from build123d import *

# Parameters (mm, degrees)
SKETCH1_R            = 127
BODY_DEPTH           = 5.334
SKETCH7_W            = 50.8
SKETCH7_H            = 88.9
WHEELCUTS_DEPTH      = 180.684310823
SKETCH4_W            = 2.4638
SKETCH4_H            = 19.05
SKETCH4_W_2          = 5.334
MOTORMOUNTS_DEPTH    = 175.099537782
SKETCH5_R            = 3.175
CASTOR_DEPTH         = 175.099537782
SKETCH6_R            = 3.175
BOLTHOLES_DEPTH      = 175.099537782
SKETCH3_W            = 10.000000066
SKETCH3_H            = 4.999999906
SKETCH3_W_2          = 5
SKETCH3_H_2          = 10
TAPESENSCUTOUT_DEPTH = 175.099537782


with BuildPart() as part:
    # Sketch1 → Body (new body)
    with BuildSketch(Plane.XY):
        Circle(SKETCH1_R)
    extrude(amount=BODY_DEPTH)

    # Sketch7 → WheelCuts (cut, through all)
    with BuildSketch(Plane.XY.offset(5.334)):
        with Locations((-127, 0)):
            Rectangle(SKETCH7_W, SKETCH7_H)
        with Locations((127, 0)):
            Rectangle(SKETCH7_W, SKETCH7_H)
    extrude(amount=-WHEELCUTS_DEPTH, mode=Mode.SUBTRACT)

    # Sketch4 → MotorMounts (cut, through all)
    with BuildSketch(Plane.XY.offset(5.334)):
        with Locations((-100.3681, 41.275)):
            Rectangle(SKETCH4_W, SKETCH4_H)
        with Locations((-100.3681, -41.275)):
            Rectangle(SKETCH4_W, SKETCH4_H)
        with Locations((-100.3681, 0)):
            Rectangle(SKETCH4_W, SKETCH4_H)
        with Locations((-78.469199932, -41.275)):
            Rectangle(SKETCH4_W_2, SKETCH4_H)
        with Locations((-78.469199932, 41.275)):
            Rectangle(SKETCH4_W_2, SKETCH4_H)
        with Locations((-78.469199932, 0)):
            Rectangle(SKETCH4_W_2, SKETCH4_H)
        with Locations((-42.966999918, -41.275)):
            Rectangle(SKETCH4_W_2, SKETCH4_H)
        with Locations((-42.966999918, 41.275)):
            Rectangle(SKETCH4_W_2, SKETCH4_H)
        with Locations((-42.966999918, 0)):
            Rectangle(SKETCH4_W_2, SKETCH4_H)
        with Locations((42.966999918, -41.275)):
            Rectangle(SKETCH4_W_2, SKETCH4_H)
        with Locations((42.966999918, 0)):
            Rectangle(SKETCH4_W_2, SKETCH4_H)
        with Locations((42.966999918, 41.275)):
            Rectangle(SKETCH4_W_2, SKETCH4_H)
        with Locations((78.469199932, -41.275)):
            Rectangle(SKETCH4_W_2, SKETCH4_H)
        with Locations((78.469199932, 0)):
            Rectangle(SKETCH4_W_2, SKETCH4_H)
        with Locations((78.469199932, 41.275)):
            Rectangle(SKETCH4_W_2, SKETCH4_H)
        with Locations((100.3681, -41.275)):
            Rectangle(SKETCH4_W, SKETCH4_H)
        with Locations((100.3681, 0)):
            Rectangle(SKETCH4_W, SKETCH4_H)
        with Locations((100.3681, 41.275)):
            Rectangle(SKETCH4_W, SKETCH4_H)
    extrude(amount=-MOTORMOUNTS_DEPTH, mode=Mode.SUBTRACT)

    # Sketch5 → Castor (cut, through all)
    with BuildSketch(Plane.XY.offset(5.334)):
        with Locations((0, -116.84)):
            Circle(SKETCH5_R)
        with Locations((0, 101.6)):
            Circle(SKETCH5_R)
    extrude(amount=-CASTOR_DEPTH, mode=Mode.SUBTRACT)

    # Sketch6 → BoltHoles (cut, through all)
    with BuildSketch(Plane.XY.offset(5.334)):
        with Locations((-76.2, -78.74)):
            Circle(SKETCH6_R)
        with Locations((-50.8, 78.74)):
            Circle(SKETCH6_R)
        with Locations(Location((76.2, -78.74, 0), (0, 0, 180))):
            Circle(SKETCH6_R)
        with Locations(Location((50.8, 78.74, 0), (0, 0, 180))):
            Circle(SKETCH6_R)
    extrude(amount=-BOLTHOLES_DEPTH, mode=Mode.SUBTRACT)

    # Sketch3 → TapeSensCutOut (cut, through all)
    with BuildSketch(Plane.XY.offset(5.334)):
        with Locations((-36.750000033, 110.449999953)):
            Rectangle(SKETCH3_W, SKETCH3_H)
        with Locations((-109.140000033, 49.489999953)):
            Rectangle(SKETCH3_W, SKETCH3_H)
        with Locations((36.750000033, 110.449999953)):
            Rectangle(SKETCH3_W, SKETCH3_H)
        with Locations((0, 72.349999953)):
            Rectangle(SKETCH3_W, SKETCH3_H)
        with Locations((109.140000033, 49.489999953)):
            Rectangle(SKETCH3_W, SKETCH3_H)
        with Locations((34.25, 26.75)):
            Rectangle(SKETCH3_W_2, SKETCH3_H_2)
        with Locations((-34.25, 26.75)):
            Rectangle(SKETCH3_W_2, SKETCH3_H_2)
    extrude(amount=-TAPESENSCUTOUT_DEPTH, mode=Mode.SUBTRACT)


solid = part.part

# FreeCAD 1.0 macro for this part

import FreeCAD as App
import Part
import Sketcher

V = App.Vector
Q = App.Units.Quantity


def add_polygon(sketch, points):
    """Adds a closed chain of lines whose ends are joined by coincident constraints."""
    first, n = sketch.GeometryCount, len(points)
    for a, b in zip(points, points[1:] + points[:1]):
        sketch.addGeometry(Part.LineSegment(App.Vector(*a, 0), App.Vector(*b, 0)), False)
    for i in range(n):
        sketch.addConstraint(Sketcher.Constraint("Coincident", first + i, 2, first + (i + 1) % n, 1))

doc = App.newDocument("Part")
body = doc.addObject("PartDesign::Body", "Body")

# Sketch on XY plane
sketch1 = doc.addObject("Sketcher::SketchObject", "Sketch")
body.addObject(sketch1)
sketch1.AttachmentSupport = (doc.XY_Plane, [""])
sketch1.MapMode = "FlatFace"
sketch1.addGeometry(Part.Circle(V(0, 0, 0), V(0, 0, 1), 127), False)
sketch1.addConstraint([
    Sketcher.Constraint("Coincident", 0, 3, -1, 1),
    Sketcher.Constraint("Diameter", 0, Q("10 in")),
])
pad1 = doc.addObject("PartDesign::Pad", "Pad")
body.addObject(pad1)
pad1.Profile = sketch1
pad1.Length = Q("0.21 in")

# Sketch on XY plane
sketch2 = doc.addObject("Sketcher::SketchObject", "Sketch001")
body.addObject(sketch2)
sketch2.AttachmentSupport = (doc.XY_Plane, [""])
sketch2.MapMode = "FlatFace"
sketch2.AttachmentOffset = App.Placement(V(0, 0, 0.21 * 25.4), App.Rotation())
add_polygon(sketch2, [(-152, 44), (-152, -44), (-102, -44), (-102, 44)])  # lines 0-3
add_polygon(sketch2, [(102, 44), (102, -44), (152, -44), (152, 44)])  # lines 4-7
sketch2.addConstraint([
    Sketcher.Constraint("Vertical", 0),
    Sketcher.Constraint("Horizontal", 1),
    Sketcher.Constraint("Vertical", 2),
    Sketcher.Constraint("Horizontal", 3),
    Sketcher.Constraint("Vertical", 4),
    Sketcher.Constraint("Horizontal", 5),
    Sketcher.Constraint("Vertical", 6),
    Sketcher.Constraint("Horizontal", 7),
    Sketcher.Constraint("Symmetric", 2, 2, 4, 2, -1, 1),
    Sketcher.Constraint("Symmetric", 0, 2, 6, 2, -1, 1),
    Sketcher.Constraint("Horizontal", 1, 2, 4, 2),
    Sketcher.Constraint("DistanceX", 1, 1, 1, 2, Q("2 in")),
    Sketcher.Constraint("DistanceY", 0, 2, 0, 1, Q("3.5 in")),
    Sketcher.Constraint("DistanceX", 0, 2, -1, 1, Q("6 in")),
])
pocket1 = doc.addObject("PartDesign::Pocket", "Pocket")
body.addObject(pocket1)
pocket1.Profile = sketch2
pocket1.Type = "ThroughAll"

# Sketch on XY plane
sketch3 = doc.addObject("Sketcher::SketchObject", "Sketch002")
body.addObject(sketch3)
sketch3.AttachmentSupport = (doc.XY_Plane, [""])
sketch3.MapMode = "FlatFace"
sketch3.AttachmentOffset = App.Placement(V(0, 0, 0.21 * 25.4), App.Rotation())
add_polygon(sketch3, [(-101.6, 50.8), (-101.6, 31.8), (-99.1, 31.8), (-99.1, 50.8)])  # lines 0-3
add_polygon(sketch3, [(-101.6, -31.8), (-101.6, -50.8), (-99.1, -50.8), (-99.1, -31.8)])  # lines 4-7
add_polygon(sketch3, [(-101.6, 9.5), (-101.6, -9.5), (-99.1, -9.5), (-99.1, 9.5)])  # lines 8-11
add_polygon(sketch3, [(-81.1, -31.8), (-81.1, -50.8), (-75.8, -50.8), (-75.8, -31.8)])  # lines 12-15
add_polygon(sketch3, [(-81.1, 50.8), (-81.1, 31.8), (-75.8, 31.8), (-75.8, 50.8)])  # lines 16-19
add_polygon(sketch3, [(-81.1, 9.5), (-81.1, -9.5), (-75.8, -9.5), (-75.8, 9.5)])  # lines 20-23
add_polygon(sketch3, [(-45.6, -31.8), (-45.6, -50.8), (-40.3, -50.8), (-40.3, -31.8)])  # lines 24-27
add_polygon(sketch3, [(-45.6, 50.8), (-45.6, 31.8), (-40.3, 31.8), (-40.3, 50.8)])  # lines 28-31
add_polygon(sketch3, [(-45.6, 9.5), (-45.6, -9.5), (-40.3, -9.5), (-40.3, 9.5)])  # lines 32-35
add_polygon(sketch3, [(40.3, -31.8), (40.3, -50.8), (45.6, -50.8), (45.6, -31.8)])  # lines 36-39
add_polygon(sketch3, [(40.3, 9.5), (40.3, -9.5), (45.6, -9.5), (45.6, 9.5)])  # lines 40-43
add_polygon(sketch3, [(40.3, 50.8), (40.3, 31.8), (45.6, 31.8), (45.6, 50.8)])  # lines 44-47
add_polygon(sketch3, [(75.8, -31.8), (75.8, -50.8), (81.1, -50.8), (81.1, -31.8)])  # lines 48-51
add_polygon(sketch3, [(75.8, 9.5), (75.8, -9.5), (81.1, -9.5), (81.1, 9.5)])  # lines 52-55
add_polygon(sketch3, [(75.8, 50.8), (75.8, 31.8), (81.1, 31.8), (81.1, 50.8)])  # lines 56-59
add_polygon(sketch3, [(99.1, -31.8), (99.1, -50.8), (101.6, -50.8), (101.6, -31.8)])  # lines 60-63
add_polygon(sketch3, [(99.1, 9.5), (99.1, -9.5), (101.6, -9.5), (101.6, 9.5)])  # lines 64-67
add_polygon(sketch3, [(99.1, 50.8), (99.1, 31.8), (101.6, 31.8), (101.6, 50.8)])  # lines 68-71
sketch3.addConstraint([
    Sketcher.Constraint("Vertical", 0),
    Sketcher.Constraint("Horizontal", 1),
    Sketcher.Constraint("Vertical", 2),
    Sketcher.Constraint("Horizontal", 3),
    Sketcher.Constraint("Vertical", 4),
    Sketcher.Constraint("Horizontal", 5),
    Sketcher.Constraint("Vertical", 6),
    Sketcher.Constraint("Horizontal", 7),
    Sketcher.Constraint("Vertical", 8),
    Sketcher.Constraint("Horizontal", 9),
    Sketcher.Constraint("Vertical", 10),
    Sketcher.Constraint("Horizontal", 11),
    Sketcher.Constraint("Vertical", 12),
    Sketcher.Constraint("Horizontal", 13),
    Sketcher.Constraint("Vertical", 14),
    Sketcher.Constraint("Horizontal", 15),
    Sketcher.Constraint("Vertical", 16),
    Sketcher.Constraint("Horizontal", 17),
    Sketcher.Constraint("Vertical", 18),
    Sketcher.Constraint("Horizontal", 19),
    Sketcher.Constraint("Vertical", 20),
    Sketcher.Constraint("Horizontal", 21),
    Sketcher.Constraint("Vertical", 22),
    Sketcher.Constraint("Horizontal", 23),
    Sketcher.Constraint("Vertical", 24),
    Sketcher.Constraint("Horizontal", 25),
    Sketcher.Constraint("Vertical", 26),
    Sketcher.Constraint("Horizontal", 27),
    Sketcher.Constraint("Vertical", 28),
    Sketcher.Constraint("Horizontal", 29),
    Sketcher.Constraint("Vertical", 30),
    Sketcher.Constraint("Horizontal", 31),
    Sketcher.Constraint("Vertical", 32),
    Sketcher.Constraint("Horizontal", 33),
    Sketcher.Constraint("Vertical", 34),
    Sketcher.Constraint("Horizontal", 35),
    Sketcher.Constraint("Vertical", 36),
    Sketcher.Constraint("Horizontal", 37),
    Sketcher.Constraint("Vertical", 38),
    Sketcher.Constraint("Horizontal", 39),
    Sketcher.Constraint("Vertical", 40),
    Sketcher.Constraint("Horizontal", 41),
    Sketcher.Constraint("Vertical", 42),
    Sketcher.Constraint("Horizontal", 43),
    Sketcher.Constraint("Vertical", 44),
    Sketcher.Constraint("Horizontal", 45),
    Sketcher.Constraint("Vertical", 46),
    Sketcher.Constraint("Horizontal", 47),
    Sketcher.Constraint("Vertical", 48),
    Sketcher.Constraint("Horizontal", 49),
    Sketcher.Constraint("Vertical", 50),
    Sketcher.Constraint("Horizontal", 51),
    Sketcher.Constraint("Vertical", 52),
    Sketcher.Constraint("Horizontal", 53),
    Sketcher.Constraint("Vertical", 54),
    Sketcher.Constraint("Horizontal", 55),
    Sketcher.Constraint("Vertical", 56),
    Sketcher.Constraint("Horizontal", 57),
    Sketcher.Constraint("Vertical", 58),
    Sketcher.Constraint("Horizontal", 59),
    Sketcher.Constraint("Vertical", 60),
    Sketcher.Constraint("Horizontal", 61),
    Sketcher.Constraint("Vertical", 62),
    Sketcher.Constraint("Horizontal", 63),
    Sketcher.Constraint("Vertical", 64),
    Sketcher.Constraint("Horizontal", 65),
    Sketcher.Constraint("Vertical", 66),
    Sketcher.Constraint("Horizontal", 67),
    Sketcher.Constraint("Vertical", 68),
    Sketcher.Constraint("Horizontal", 69),
    Sketcher.Constraint("Vertical", 70),
    Sketcher.Constraint("Horizontal", 71),
    Sketcher.Constraint("Symmetric", 30, 2, 36, 2, -1, 1),
    Sketcher.Constraint("Symmetric", 28, 2, 38, 2, -1, 1),
    Sketcher.Constraint("Symmetric", 34, 2, 40, 2, -1, 1),
    Sketcher.Constraint("Symmetric", 32, 2, 42, 2, -1, 1),
    Sketcher.Constraint("Symmetric", 26, 2, 44, 2, -1, 1),
    Sketcher.Constraint("Symmetric", 24, 2, 46, 2, -1, 1),
    Sketcher.Constraint("Symmetric", 18, 2, 48, 2, -1, 1),
    Sketcher.Constraint("Symmetric", 16, 2, 50, 2, -1, 1),
    Sketcher.Constraint("Symmetric", 22, 2, 52, 2, -1, 1),
    Sketcher.Constraint("Symmetric", 20, 2, 54, 2, -1, 1),
    Sketcher.Constraint("Symmetric", 14, 2, 56, 2, -1, 1),
    Sketcher.Constraint("Symmetric", 12, 2, 58, 2, -1, 1),
    Sketcher.Constraint("Symmetric", 2, 2, 60, 2, -1, 1),
    Sketcher.Constraint("Symmetric", 0, 2, 62, 2, -1, 1),
    Sketcher.Constraint("Symmetric", 10, 2, 64, 2, -1, 1),
    Sketcher.Constraint("Symmetric", 8, 2, 66, 2, -1, 1),
    Sketcher.Constraint("Symmetric", 6, 2, 68, 2, -1, 1),
    Sketcher.Constraint("Symmetric", 4, 2, 70, 2, -1, 1),
    Sketcher.Constraint("Symmetric", 25, 2, 36, 2, -2),
    Sketcher.Constraint("Symmetric", 27, 2, 38, 2, -2),
    Sketcher.Constraint("Symmetric", 13, 2, 48, 2, -2),
    Sketcher.Constraint("Symmetric", 15, 2, 50, 2, -2),
    Sketcher.Constraint("Symmetric", 5, 2, 60, 2, -2),
    Sketcher.Constraint("Symmetric", 7, 2, 62, 2, -2),
    Sketcher.Constraint("Horizontal", 5, 2, 12, 2),
    Sketcher.Constraint("Horizontal", 7, 2, 14, 2),
    Sketcher.Constraint("Horizontal", 9, 2, 20, 2),
    Sketcher.Constraint("Horizontal", 11, 2, 22, 2),
    Sketcher.Constraint("Horizontal", 13, 2, 24, 2),
    Sketcher.Constraint("Horizontal", 15, 2, 26, 2),
    Sketcher.Constraint("Horizontal", 21, 2, 32, 2),
    Sketcher.Constraint("Horizontal", 23, 2, 34, 2),
    Sketcher.Constraint("Horizontal", 33, 2, 40, 2),
    Sketcher.Constraint("Vertical", 7, 2, 8, 2),
    Sketcher.Constraint("Vertical", 6, 2, 9, 2),
    Sketcher.Constraint("Vertical", 19, 2, 20, 2),
    Sketcher.Constraint("Vertical", 18, 2, 21, 2),
    Sketcher.Constraint("Vertical", 31, 2, 32, 2),
    Sketcher.Constraint("Vertical", 30, 2, 33, 2),
    Sketcher.Constraint("Equal", 23, 25),
    Sketcher.Constraint("Equal", 6, 8),
    Sketcher.Constraint("DistanceX", 0, 2, -1, 1, Q("4 in")),
    Sketcher.Constraint("DistanceY", -1, 1, 2, 2, Q("2 in")),
    Sketcher.Constraint("DistanceX", 13, 1, 13, 2, Q("0.21 in")),
    Sketcher.Constraint("DistanceY", 0, 2, 0, 1, Q("0.75 in")),
    Sketcher.Constraint("DistanceX", 1, 1, 1, 2, Q("0.097 in")),
    Sketcher.Constraint("DistanceX", 12, 2, -1, 1, Q("81.1362 mm")),
    Sketcher.Constraint("DistanceX", 24, 2, -1, 1, Q("45.634 mm")),
])
pocket2 = doc.addObject("PartDesign::Pocket", "Pocket001")
body.addObject(pocket2)
pocket2.Profile = sketch3
pocket2.Type = "ThroughAll"

# Sketch on XY plane
sketch4 = doc.addObject("Sketcher::SketchObject", "Sketch003")
body.addObject(sketch4)
sketch4.AttachmentSupport = (doc.XY_Plane, [""])
sketch4.MapMode = "FlatFace"
sketch4.AttachmentOffset = App.Placement(V(0, 0, 0.21 * 25.4), App.Rotation())
sketch4.addGeometry([
    Part.Circle(V(0, -116.8, 0), V(0, 0, 1), 3.2),
    Part.Circle(V(0, 101.6, 0), V(0, 0, 1), 3.2),
], False)
sketch4.addConstraint([
    Sketcher.Constraint("Equal", 0, 1),
    Sketcher.Constraint("PointOnObject", 0, 3, -2),
    Sketcher.Constraint("PointOnObject", 1, 3, -2),
    Sketcher.Constraint("Diameter", 0, Q("0.25 in")),
    Sketcher.Constraint("DistanceY", -1, 1, 1, 3, Q("4 in")),
    Sketcher.Constraint("DistanceY", 0, 3, -1, 1, Q("4.6 in")),
])
pocket3 = doc.addObject("PartDesign::Pocket", "Pocket002")
body.addObject(pocket3)
pocket3.Profile = sketch4
pocket3.Type = "ThroughAll"

# Sketch on XY plane
sketch5 = doc.addObject("Sketcher::SketchObject", "Sketch004")
body.addObject(sketch5)
sketch5.AttachmentSupport = (doc.XY_Plane, [""])
sketch5.MapMode = "FlatFace"
sketch5.AttachmentOffset = App.Placement(V(0, 0, 0.21 * 25.4), App.Rotation())
sketch5.addGeometry([
    Part.Circle(V(-76.2, -78.7, 0), V(0, 0, 1), 3.2),
    Part.Circle(V(-50.8, 78.7, 0), V(0, 0, 1), 3.2),
    Part.Circle(V(76.2, -78.7, 0), V(0, 0, 1), 3.2),
    Part.Circle(V(50.8, 78.7, 0), V(0, 0, 1), 3.2),
], False)
sketch5.addConstraint([
    Sketcher.Constraint("Equal", 0, 1),
    Sketcher.Constraint("Equal", 1, 2),
    Sketcher.Constraint("Equal", 2, 3),
    Sketcher.Constraint("Symmetric", 0, 3, 2, 3, -2),
    Sketcher.Constraint("Symmetric", 1, 3, 3, 3, -2),
    Sketcher.Constraint("Diameter", 0, Q("0.25 in")),
    Sketcher.Constraint("DistanceX", 0, 3, -1, 1, Q("3 in")),
    Sketcher.Constraint("DistanceX", 1, 3, -1, 1, Q("2 in")),
    Sketcher.Constraint("DistanceY", 0, 3, -1, 1, Q("3.1 in")),
    Sketcher.Constraint("DistanceY", -1, 1, 1, 3, Q("3.1 in")),
])
pocket4 = doc.addObject("PartDesign::Pocket", "Pocket003")
body.addObject(pocket4)
pocket4.Profile = sketch5
pocket4.Type = "ThroughAll"

# Sketch on XY plane
sketch6 = doc.addObject("Sketcher::SketchObject", "Sketch005")
body.addObject(sketch6)
sketch6.AttachmentSupport = (doc.XY_Plane, [""])
sketch6.MapMode = "FlatFace"
sketch6.AttachmentOffset = App.Placement(V(0, 0, 0.21 * 25.4), App.Rotation())
add_polygon(sketch6, [(-41.8, 112.9), (-41.8, 108), (-31.8, 108), (-31.8, 112.9)])  # lines 0-3
add_polygon(sketch6, [(-114.1, 52), (-114.1, 47), (-104.1, 47), (-104.1, 52)])  # lines 4-7
add_polygon(sketch6, [(31.8, 112.9), (31.8, 108), (41.8, 108), (41.8, 112.9)])  # lines 8-11
add_polygon(sketch6, [(-5, 74.8), (-5, 69.8), (5, 69.8), (5, 74.8)])  # lines 12-15
add_polygon(sketch6, [(104.1, 52), (104.1, 47), (114.1, 47), (114.1, 52)])  # lines 16-19
add_polygon(sketch6, [(31.8, 31.8), (31.8, 21.8), (36.8, 21.8), (36.8, 31.8)])  # lines 20-23
add_polygon(sketch6, [(-36.8, 31.8), (-36.8, 21.8), (-31.8, 21.8), (-31.8, 31.8)])  # lines 24-27
sketch6.addConstraint([
    Sketcher.Constraint("Vertical", 0),
    Sketcher.Constraint("Horizontal", 1),
    Sketcher.Constraint("Vertical", 2),
    Sketcher.Constraint("Horizontal", 3),
    Sketcher.Constraint("Vertical", 4),
    Sketcher.Constraint("Horizontal", 5),
    Sketcher.Constraint("Vertical", 6),
    Sketcher.Constraint("Horizontal", 7),
    Sketcher.Constraint("Vertical", 8),
    Sketcher.Constraint("Horizontal", 9),
    Sketcher.Constraint("Vertical", 10),
    Sketcher.Constraint("Horizontal", 11),
    Sketcher.Constraint("Vertical", 12),
    Sketcher.Constraint("Horizontal", 13),
    Sketcher.Constraint("Vertical", 14),
    Sketcher.Constraint("Horizontal", 15),
    Sketcher.Constraint("Vertical", 16),
    Sketcher.Constraint("Horizontal", 17),
    Sketcher.Constraint("Vertical", 18),
    Sketcher.Constraint("Horizontal", 19),
    Sketcher.Constraint("Vertical", 20),
    Sketcher.Constraint("Horizontal", 21),
    Sketcher.Constraint("Vertical", 22),
    Sketcher.Constraint("Horizontal", 23),
    Sketcher.Constraint("Vertical", 24),
    Sketcher.Constraint("Horizontal", 25),
    Sketcher.Constraint("Vertical", 26),
    Sketcher.Constraint("Horizontal", 27),
    Sketcher.Constraint("Symmetric", 1, 2, 8, 2, -2),
    Sketcher.Constraint("Symmetric", 3, 2, 10, 2, -2),
    Sketcher.Constraint("Symmetric", 5, 2, 16, 2, -2),
    Sketcher.Constraint("Symmetric", 7, 2, 18, 2, -2),
    Sketcher.Constraint("Symmetric", 21, 2, 24, 2, -2),
    Sketcher.Constraint("Symmetric", 23, 2, 26, 2, -2),
    Sketcher.Constraint("Vertical", 11, 2, 20, 2),
    Sketcher.Constraint("Equal", 3, 5),
    Sketcher.Constraint("Equal", 11, 13),
    Sketcher.Constraint("Equal", 27, 0),
    Sketcher.Constraint("Equal", 2, 4),
    Sketcher.Constraint("Equal", 10, 12),
    Sketcher.Constraint("Equal", 19, 20),
    Sketcher.Constraint("DistanceX", 5, 2, -1, 1, Q("4.1 in")),
    Sketcher.Constraint("DistanceY", 4, 2, 0, 2, Q("2.4 in")),
    Sketcher.Constraint("DistanceX", 1, 2, 8, 2, Q("2.5 in")),
    Sketcher.Constraint("DistanceY", 12, 2, 1, 2, Q("1.5 in")),
    Sketcher.Constraint("DistanceY", 22, 2, 13, 2, Q("1.5 in")),
    Sketcher.Constraint("DistanceY", -1, 1, 0, 2, Q("4.25 in")),
    Sketcher.Constraint("DistanceX", 13, 2, 21, 2, Q("1.25 in")),
    Sketcher.Constraint("DistanceX", 24, 2, 12, 2, Q("1.25 in")),
    Sketcher.Constraint("DistanceX", 1, 1, 1, 2, Q("10 mm")),
])
pocket5 = doc.addObject("PartDesign::Pocket", "Pocket004")
body.addObject(pocket5)
pocket5.Profile = sketch6
pocket5.Type = "ThroughAll"

doc.recompute()
